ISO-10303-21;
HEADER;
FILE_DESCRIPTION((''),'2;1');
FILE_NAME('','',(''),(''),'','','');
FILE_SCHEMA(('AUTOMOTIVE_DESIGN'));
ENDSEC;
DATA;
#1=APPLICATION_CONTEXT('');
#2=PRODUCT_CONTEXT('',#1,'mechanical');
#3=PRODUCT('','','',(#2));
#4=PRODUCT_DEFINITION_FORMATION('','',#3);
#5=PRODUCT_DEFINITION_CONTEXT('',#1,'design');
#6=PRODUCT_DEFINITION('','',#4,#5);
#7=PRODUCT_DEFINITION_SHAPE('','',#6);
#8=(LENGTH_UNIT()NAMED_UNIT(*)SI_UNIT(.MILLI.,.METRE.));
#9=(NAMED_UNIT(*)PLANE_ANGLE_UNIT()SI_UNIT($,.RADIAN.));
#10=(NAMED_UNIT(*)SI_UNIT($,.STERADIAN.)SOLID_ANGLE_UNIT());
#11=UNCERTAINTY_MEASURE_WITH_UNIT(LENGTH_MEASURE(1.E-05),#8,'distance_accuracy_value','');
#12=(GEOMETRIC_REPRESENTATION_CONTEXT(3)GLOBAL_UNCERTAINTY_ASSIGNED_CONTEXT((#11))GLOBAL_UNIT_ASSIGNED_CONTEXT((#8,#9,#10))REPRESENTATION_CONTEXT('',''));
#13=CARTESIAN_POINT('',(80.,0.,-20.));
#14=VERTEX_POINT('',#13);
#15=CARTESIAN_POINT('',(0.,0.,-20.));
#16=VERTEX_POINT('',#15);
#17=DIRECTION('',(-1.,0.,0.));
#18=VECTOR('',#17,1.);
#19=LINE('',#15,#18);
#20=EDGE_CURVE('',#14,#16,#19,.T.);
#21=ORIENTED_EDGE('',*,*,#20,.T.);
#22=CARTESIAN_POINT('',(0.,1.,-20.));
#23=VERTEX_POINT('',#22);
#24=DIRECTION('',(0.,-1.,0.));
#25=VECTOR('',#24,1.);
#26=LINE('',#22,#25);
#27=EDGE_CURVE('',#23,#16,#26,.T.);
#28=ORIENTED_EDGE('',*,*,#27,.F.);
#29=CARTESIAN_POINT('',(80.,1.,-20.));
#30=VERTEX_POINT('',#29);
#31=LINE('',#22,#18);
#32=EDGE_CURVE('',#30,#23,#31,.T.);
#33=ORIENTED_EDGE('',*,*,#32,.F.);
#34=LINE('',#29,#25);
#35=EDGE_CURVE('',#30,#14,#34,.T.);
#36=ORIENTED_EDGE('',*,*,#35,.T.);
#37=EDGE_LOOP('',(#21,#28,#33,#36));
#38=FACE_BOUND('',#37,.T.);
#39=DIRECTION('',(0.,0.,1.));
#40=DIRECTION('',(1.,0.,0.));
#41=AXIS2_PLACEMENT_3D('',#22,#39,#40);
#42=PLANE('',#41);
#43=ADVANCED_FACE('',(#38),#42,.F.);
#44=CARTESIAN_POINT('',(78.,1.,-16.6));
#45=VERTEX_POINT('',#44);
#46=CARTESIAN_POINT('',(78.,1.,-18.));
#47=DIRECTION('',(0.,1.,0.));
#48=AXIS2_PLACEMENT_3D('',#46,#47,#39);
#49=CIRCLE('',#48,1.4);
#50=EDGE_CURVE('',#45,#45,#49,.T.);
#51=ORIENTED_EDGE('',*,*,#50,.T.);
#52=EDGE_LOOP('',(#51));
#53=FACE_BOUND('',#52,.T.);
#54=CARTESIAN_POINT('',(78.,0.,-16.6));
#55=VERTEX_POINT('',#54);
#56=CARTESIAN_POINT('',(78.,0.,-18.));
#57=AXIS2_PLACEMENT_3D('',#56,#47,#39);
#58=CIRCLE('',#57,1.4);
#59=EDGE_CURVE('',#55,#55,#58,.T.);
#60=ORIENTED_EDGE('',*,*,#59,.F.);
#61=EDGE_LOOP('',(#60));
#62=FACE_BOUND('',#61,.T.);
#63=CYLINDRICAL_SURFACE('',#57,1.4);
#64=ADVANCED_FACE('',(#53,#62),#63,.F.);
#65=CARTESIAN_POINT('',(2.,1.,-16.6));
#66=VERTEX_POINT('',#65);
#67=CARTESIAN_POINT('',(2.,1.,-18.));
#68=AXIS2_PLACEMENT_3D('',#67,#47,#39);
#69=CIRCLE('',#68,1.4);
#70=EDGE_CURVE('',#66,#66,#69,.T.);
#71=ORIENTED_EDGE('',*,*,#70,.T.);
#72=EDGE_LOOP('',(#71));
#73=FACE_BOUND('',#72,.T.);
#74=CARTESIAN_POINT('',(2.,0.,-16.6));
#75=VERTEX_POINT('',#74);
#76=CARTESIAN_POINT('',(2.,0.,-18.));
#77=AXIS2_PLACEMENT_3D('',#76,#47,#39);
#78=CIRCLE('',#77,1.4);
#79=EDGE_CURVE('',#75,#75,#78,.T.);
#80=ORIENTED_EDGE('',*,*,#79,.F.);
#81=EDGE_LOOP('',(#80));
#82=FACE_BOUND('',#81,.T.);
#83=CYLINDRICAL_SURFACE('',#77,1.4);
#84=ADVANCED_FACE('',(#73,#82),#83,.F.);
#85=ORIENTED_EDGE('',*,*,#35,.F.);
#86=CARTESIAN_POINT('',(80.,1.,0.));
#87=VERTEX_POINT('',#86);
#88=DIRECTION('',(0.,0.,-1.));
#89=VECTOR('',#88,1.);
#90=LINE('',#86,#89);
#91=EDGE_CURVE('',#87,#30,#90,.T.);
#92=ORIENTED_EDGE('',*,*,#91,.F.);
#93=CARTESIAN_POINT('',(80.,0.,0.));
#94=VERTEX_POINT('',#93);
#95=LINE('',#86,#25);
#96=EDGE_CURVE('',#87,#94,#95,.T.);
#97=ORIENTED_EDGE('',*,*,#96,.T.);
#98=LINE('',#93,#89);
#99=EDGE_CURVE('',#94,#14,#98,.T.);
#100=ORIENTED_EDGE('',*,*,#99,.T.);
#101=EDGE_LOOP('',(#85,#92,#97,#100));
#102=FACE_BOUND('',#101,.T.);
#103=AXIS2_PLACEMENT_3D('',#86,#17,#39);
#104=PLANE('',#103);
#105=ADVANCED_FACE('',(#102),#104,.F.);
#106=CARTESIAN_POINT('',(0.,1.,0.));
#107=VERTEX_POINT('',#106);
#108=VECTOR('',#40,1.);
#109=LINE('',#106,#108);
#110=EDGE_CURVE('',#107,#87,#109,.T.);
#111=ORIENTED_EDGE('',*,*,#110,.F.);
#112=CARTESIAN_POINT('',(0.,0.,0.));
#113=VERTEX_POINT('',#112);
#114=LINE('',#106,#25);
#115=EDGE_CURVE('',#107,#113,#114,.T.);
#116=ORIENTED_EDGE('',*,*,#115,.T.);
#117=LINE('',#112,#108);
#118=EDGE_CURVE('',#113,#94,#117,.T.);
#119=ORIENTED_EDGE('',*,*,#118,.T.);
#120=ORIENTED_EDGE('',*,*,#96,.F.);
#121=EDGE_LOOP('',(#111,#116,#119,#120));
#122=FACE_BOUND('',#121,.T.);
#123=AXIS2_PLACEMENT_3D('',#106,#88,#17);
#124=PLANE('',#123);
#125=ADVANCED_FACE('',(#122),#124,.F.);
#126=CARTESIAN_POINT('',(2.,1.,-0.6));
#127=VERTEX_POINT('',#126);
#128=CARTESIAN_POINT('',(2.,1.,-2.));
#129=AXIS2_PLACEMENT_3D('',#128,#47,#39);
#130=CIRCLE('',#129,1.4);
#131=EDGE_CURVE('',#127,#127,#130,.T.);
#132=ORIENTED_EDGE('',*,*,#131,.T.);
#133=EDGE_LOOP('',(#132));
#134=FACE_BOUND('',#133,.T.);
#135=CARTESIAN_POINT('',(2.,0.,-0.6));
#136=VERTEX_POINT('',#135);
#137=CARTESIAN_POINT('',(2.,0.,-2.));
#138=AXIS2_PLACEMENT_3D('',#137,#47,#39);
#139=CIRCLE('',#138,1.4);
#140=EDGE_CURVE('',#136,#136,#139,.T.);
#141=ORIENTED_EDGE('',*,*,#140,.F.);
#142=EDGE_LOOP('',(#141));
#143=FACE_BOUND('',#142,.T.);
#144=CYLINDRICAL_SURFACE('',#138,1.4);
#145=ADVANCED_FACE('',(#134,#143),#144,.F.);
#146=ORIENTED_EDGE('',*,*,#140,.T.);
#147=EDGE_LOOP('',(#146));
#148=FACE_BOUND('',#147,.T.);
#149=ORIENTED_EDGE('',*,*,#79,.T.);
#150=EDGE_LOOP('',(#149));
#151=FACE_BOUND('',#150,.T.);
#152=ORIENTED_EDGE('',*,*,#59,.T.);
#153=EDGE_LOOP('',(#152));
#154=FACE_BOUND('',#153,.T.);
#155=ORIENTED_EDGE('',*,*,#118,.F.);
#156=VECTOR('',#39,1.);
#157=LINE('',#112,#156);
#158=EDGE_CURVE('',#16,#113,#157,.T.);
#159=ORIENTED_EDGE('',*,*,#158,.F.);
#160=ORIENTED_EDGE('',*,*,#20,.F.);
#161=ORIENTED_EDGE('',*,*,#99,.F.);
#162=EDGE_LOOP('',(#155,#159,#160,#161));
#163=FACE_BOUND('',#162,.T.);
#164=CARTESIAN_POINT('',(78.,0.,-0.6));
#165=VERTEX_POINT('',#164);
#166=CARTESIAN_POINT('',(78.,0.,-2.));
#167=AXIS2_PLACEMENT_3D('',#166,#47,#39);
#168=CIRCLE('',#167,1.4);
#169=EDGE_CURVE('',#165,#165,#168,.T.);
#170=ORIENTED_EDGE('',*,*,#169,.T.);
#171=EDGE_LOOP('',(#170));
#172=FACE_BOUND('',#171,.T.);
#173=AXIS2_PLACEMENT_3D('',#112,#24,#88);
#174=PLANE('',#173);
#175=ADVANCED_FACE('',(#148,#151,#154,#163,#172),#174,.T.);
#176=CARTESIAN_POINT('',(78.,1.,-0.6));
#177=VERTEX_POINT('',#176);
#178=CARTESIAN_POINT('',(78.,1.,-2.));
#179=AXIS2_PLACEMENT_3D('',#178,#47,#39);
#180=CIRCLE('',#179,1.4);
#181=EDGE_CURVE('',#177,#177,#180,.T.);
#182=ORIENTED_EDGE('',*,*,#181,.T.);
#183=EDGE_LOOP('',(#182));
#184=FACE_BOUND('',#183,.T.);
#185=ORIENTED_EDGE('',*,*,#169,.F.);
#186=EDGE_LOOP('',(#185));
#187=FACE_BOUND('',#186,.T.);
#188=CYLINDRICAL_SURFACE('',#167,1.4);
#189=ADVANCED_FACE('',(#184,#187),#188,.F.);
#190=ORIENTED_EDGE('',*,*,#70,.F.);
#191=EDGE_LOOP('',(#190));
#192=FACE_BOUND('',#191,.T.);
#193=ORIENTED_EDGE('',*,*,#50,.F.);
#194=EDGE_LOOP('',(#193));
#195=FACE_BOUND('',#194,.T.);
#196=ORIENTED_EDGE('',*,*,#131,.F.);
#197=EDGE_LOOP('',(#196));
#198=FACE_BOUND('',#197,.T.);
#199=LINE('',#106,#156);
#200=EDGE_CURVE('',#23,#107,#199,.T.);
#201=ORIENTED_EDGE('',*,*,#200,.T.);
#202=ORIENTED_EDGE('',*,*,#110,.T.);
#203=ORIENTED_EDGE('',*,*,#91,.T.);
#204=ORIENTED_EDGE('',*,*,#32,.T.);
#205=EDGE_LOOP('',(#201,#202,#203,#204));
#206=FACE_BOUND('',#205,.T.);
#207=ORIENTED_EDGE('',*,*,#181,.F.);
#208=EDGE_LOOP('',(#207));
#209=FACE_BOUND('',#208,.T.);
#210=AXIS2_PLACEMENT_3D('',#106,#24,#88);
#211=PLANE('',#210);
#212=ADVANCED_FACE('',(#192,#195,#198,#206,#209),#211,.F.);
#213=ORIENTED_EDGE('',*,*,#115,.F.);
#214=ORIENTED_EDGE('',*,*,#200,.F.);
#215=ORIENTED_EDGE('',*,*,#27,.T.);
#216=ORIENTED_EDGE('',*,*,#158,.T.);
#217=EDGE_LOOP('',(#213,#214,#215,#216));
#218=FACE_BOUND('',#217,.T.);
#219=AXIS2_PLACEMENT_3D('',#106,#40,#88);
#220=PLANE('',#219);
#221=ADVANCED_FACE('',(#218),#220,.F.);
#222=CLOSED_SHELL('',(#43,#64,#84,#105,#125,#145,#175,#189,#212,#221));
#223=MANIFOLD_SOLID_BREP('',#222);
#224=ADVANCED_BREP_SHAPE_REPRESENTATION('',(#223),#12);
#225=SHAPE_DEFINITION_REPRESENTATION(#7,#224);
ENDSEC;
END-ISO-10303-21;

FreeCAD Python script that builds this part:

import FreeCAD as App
import Part
import Sketcher


def add_polygon(sketch, points):
    """Adds a closed chain of lines whose ends are joined by coincident constraints."""
    first, n = sketch.GeometryCount, len(points)
    for a, b in zip(points, points[1:] + points[:1]):
        sketch.addGeometry(Part.LineSegment(App.Vector(*a, 0), App.Vector(*b, 0)), False)
    for i in range(n):
        sketch.addConstraint(Sketcher.Constraint("Coincident", first + i, 2, first + (i + 1) % n, 1))

doc = App.newDocument("Part")
body = doc.addObject("PartDesign::Body", "Body")

# Sketch on XZ plane
sketch1 = doc.addObject("Sketcher::SketchObject", "Sketch")
body.addObject(sketch1)
sketch1.AttachmentSupport = (doc.XZ_Plane, [""])
sketch1.MapMode = "FlatFace"
add_polygon(sketch1, [(0, -20), (0, 0), (80, 0), (80, -20)])  # lines 0-3
sketch1.addConstraint(Sketcher.Constraint("Vertical", 0))
sketch1.addConstraint(Sketcher.Constraint("Horizontal", 1))
sketch1.addConstraint(Sketcher.Constraint("Vertical", 2))
sketch1.addConstraint(Sketcher.Constraint("Horizontal", 3))
sketch1.addConstraint(Sketcher.Constraint("Coincident", 0, 2, -1, 1))
sketch1.addConstraint(Sketcher.Constraint("DistanceX", 1, 1, 1, 2, 80.0))
sketch1.addConstraint(Sketcher.Constraint("DistanceY", 0, 1, 0, 2, 20.0))
pad1 = doc.addObject("PartDesign::Pad", "Pad")
body.addObject(pad1)
pad1.Profile = sketch1
pad1.Length = 1
pad1.Reversed = True

# Sketch on XZ plane
sketch2 = doc.addObject("Sketcher::SketchObject", "Sketch001")
body.addObject(sketch2)
sketch2.AttachmentSupport = (doc.XZ_Plane, [""])
sketch2.MapMode = "FlatFace"
sketch2.AttachmentOffset = App.Placement(App.Vector(0, 0, -1), App.Rotation())
sketch2.addGeometry(Part.Circle(App.Vector(2, -18, 0), App.Vector(0, 0, 1), 1.4), False)
sketch2.addGeometry(Part.Circle(App.Vector(78, -18, 0), App.Vector(0, 0, 1), 1.4), False)
sketch2.addGeometry(Part.Circle(App.Vector(78, -2, 0), App.Vector(0, 0, 1), 1.4), False)
sketch2.addGeometry(Part.Circle(App.Vector(2, -2, 0), App.Vector(0, 0, 1), 1.4), False)
sketch2.addConstraint(Sketcher.Constraint("Equal", 0, 1))
sketch2.addConstraint(Sketcher.Constraint("Equal", 1, 2))
sketch2.addConstraint(Sketcher.Constraint("Equal", 2, 3))
sketch2.addConstraint(Sketcher.Constraint("Horizontal", 0, 3, 1, 3))
sketch2.addConstraint(Sketcher.Constraint("Horizontal", 2, 3, 3, 3))
sketch2.addConstraint(Sketcher.Constraint("Vertical", 1, 3, 2, 3))
sketch2.addConstraint(Sketcher.Constraint("Vertical", 0, 3, 3, 3))
sketch2.addConstraint(Sketcher.Constraint("Diameter", 0, 2.8))
sketch2.addConstraint(Sketcher.Constraint("DistanceX", -1, 1, 0, 3, 2.0))
sketch2.addConstraint(Sketcher.Constraint("DistanceY", 0, 3, -1, 1, 18.0))
sketch2.addConstraint(Sketcher.Constraint("DistanceX", -1, 1, 1, 3, 78.0))
sketch2.addConstraint(Sketcher.Constraint("DistanceY", 2, 3, -1, 1, 2.0))
pocket1 = doc.addObject("PartDesign::Pocket", "Pocket")
body.addObject(pocket1)
pocket1.Profile = sketch2
pocket1.Type = "ThroughAll"
pocket1.Reversed = True

doc.recompute()
